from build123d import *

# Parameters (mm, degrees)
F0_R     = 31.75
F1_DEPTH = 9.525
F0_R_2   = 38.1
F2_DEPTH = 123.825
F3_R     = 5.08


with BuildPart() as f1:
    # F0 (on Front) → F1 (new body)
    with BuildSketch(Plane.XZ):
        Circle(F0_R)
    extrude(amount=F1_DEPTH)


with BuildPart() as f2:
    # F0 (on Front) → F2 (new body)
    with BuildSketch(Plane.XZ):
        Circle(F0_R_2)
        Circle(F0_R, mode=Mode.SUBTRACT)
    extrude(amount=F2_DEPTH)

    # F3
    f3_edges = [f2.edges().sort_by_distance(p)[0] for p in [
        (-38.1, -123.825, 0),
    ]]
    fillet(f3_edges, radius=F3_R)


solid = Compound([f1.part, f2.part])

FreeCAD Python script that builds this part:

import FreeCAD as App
import Part
import Sketcher

V = App.Vector
Q = App.Units.Quantity


def edges_at(feature, points):
    """Names of the edges that pass closest to the given points."""
    edges = feature.Shape.Edges
    near = lambda p: min(range(len(edges)), key=lambda i: edges[i].distToShape(Part.Vertex(*p))[0])
    return sorted({f"Edge{near(p) + 1}" for p in points})

doc = App.newDocument("Part")
body = doc.addObject("PartDesign::Body", "Body")

# Sketch on XZ plane
sketch1 = body.newObject("Sketcher::SketchObject", "Sketch")
sketch1.AttachmentSupport = (doc.getObject("XZ_Plane"), [""])
sketch1.MapMode = "FlatFace"
sketch1.addGeometry(Part.Circle(V(0, 0, 0), V(0, 0, 1), 32), False)
sketch1.addConstraint(Sketcher.Constraint("Coincident", 0, 3, -1, 1))
sketch1.addConstraint(Sketcher.Constraint("Diameter", 0, Q("2.5 in")))
pad1 = body.newObject("PartDesign::Pad", "Pad")
pad1.Profile = sketch1
pad1.Length = Q("0.375 in")
body2 = doc.addObject("PartDesign::Body", "Body001")

# Sketch on XZ plane
sketch2 = body2.newObject("Sketcher::SketchObject", "Sketch001")
sketch2.AttachmentSupport = (doc.getObject("XZ_Plane001"), [""])
sketch2.MapMode = "FlatFace"
sketch2.addGeometry(Part.Circle(V(0, 0, 0), V(0, 0, 1), 38), False)
sketch2.addGeometry(Part.Circle(V(0, 0, 0), V(0, 0, 1), 32), False)
sketch2.addConstraint(Sketcher.Constraint("Coincident", 0, 3, -1, 1))
sketch2.addConstraint(Sketcher.Constraint("Coincident", 1, 3, -1, 1))
sketch2.addConstraint(Sketcher.Constraint("Diameter", 0, Q("3 in")))
sketch2.addConstraint(Sketcher.Constraint("Diameter", 1, Q("2.5 in")))
pad2 = body2.newObject("PartDesign::Pad", "Pad001")
pad2.Profile = sketch2
pad2.Length = Q("4.875 in")
doc.recompute()

fillet = body2.newObject("PartDesign::Fillet", "Fillet")
fillet.Base = (pad2, edges_at(pad2, [(-38.1, -123.825, 0)]))
fillet.Radius = Q("0.2 in")

doc.recompute()
